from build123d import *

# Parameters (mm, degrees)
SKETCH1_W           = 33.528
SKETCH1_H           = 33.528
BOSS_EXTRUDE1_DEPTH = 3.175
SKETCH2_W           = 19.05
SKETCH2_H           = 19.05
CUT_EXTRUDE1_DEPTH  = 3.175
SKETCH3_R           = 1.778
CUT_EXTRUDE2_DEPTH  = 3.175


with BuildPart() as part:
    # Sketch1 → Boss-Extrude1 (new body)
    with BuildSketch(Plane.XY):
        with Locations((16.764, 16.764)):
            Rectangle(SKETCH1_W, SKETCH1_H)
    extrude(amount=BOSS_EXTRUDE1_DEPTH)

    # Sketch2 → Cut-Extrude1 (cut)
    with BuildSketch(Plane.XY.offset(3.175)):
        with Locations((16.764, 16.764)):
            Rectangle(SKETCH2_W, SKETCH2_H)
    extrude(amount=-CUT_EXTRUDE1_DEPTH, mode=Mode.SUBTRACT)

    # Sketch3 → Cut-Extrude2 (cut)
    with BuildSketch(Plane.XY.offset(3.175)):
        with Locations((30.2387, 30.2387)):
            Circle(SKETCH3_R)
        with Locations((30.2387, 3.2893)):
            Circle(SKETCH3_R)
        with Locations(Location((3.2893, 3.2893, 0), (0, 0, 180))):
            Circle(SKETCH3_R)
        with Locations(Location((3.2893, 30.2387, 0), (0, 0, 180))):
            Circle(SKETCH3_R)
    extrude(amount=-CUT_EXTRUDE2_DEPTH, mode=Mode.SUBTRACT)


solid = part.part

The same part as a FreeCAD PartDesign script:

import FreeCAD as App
import Part
import Sketcher

V = App.Vector
Q = App.Units.Quantity

doc = App.newDocument("Part")
params = doc.addObject("Spreadsheet::Sheet", "Params")
for row, (alias, value) in enumerate([
    ("sketch1_width", "1.32 in"),
    ("pad1_length", "0.125 in"),
    ("sketch2_width", "0.75 in"),
    ("pocket1_length", "0.125 in"),
    ("sketch3_diameter", "0.14 in"),
    ("pocket2_length", "0.125 in"),
], start=1):
    params.set(f"A{row}", alias)
    params.set(f"B{row}", "=" + value)
    params.setAlias(f"B{row}", alias)

body = doc.addObject("PartDesign::Body", "Body")

sketch1 = doc.addObject("Sketcher::SketchObject", "Sketch")
body.addObject(sketch1)
sketch1.AttachmentSupport = (doc.XY_Plane, [""])
sketch1.MapMode = "FlatFace"
sketch1.addGeometry(Part.LineSegment(V(0, 33.528, 0), V(0, 0, 0)), False)
sketch1.addGeometry(Part.LineSegment(V(0, 0, 0), V(33.528, 0, 0)), False)
sketch1.addGeometry(Part.LineSegment(V(33.528, 0, 0), V(33.528, 33.528, 0)), False)
sketch1.addGeometry(Part.LineSegment(V(33.528, 33.528, 0), V(0, 33.528, 0)), False)
sketch1.addConstraint(Sketcher.Constraint("Coincident", 0, 2, 1, 1))
sketch1.addConstraint(Sketcher.Constraint("Coincident", 1, 2, 2, 1))
sketch1.addConstraint(Sketcher.Constraint("Coincident", 2, 2, 3, 1))
sketch1.addConstraint(Sketcher.Constraint("Coincident", 3, 2, 0, 1))
sketch1.addConstraint(Sketcher.Constraint("Vertical", 0))
sketch1.addConstraint(Sketcher.Constraint("Horizontal", 1))
sketch1.addConstraint(Sketcher.Constraint("Vertical", 2))
sketch1.addConstraint(Sketcher.Constraint("Horizontal", 3))
sketch1.addConstraint(Sketcher.Constraint("Coincident", 0, 2, -1, 1))
sketch1.addConstraint(Sketcher.Constraint("Equal", 3, 0))
sketch1.addConstraint(Sketcher.Constraint("DistanceX", 1, 1, 1, 2, Q("1.32 in")))
sketch1.setExpression("Constraints[10]", "Params.sketch1_width")
pad1 = doc.addObject("PartDesign::Pad", "Pad")
body.addObject(pad1)
pad1.Profile = sketch1
pad1.setExpression("Length", "Params.pad1_length")

sketch2 = doc.addObject("Sketcher::SketchObject", "Sketch001")
body.addObject(sketch2)
sketch2.AttachmentSupport = (doc.XY_Plane, [""])
sketch2.MapMode = "FlatFace"
sketch2.AttachmentOffset = App.Placement(V(0, 0, 0.125 * 25.4), App.Rotation())
sketch2.addGeometry(Part.LineSegment(V(7.239, 26.289, 0), V(7.239, 7.239, 0)), False)
sketch2.addGeometry(Part.LineSegment(V(7.239, 7.239, 0), V(26.289, 7.239, 0)), False)
sketch2.addGeometry(Part.LineSegment(V(26.289, 7.239, 0), V(26.289, 26.289, 0)), False)
sketch2.addGeometry(Part.LineSegment(V(26.289, 26.289, 0), V(7.239, 26.289, 0)), False)
sketch2.addConstraint(Sketcher.Constraint("Coincident", 0, 2, 1, 1))
sketch2.addConstraint(Sketcher.Constraint("Coincident", 1, 2, 2, 1))
sketch2.addConstraint(Sketcher.Constraint("Coincident", 2, 2, 3, 1))
sketch2.addConstraint(Sketcher.Constraint("Coincident", 3, 2, 0, 1))
sketch2.addConstraint(Sketcher.Constraint("Vertical", 0))
sketch2.addConstraint(Sketcher.Constraint("Horizontal", 1))
sketch2.addConstraint(Sketcher.Constraint("Vertical", 2))
sketch2.addConstraint(Sketcher.Constraint("Horizontal", 3))
sketch2.addConstraint(Sketcher.Constraint("Equal", 3, 0))
sketch2.addConstraint(Sketcher.Constraint("DistanceX", 1, 1, 1, 2, Q("0.75 in")))
sketch2.addConstraint(Sketcher.Constraint("DistanceX", -1, 1, 0, 2, Q("0.285 in")))
sketch2.addConstraint(Sketcher.Constraint("DistanceY", -1, 1, 0, 2, Q("0.285 in")))
sketch2.setExpression("Constraints[9]", "Params.sketch2_width")
pocket1 = doc.addObject("PartDesign::Pocket", "Pocket")
body.addObject(pocket1)
pocket1.Profile = sketch2
pocket1.setExpression("Length", "Params.pocket1_length")

sketch3 = doc.addObject("Sketcher::SketchObject", "Sketch002")
body.addObject(sketch3)
sketch3.AttachmentSupport = (doc.XY_Plane, [""])
sketch3.MapMode = "FlatFace"
sketch3.AttachmentOffset = App.Placement(V(0, 0, 0.125 * 25.4), App.Rotation())
sketch3.addGeometry(Part.Circle(V(30.2387, 30.2387, 0), V(0, 0, 1), 1.778), False)
sketch3.addGeometry(Part.Circle(V(30.2387, 3.2893, 0), V(0, 0, 1), 1.778), False)
sketch3.addGeometry(Part.Circle(V(3.2893, 3.2893, 0), V(0, 0, 1), 1.778), False)
sketch3.addGeometry(Part.Circle(V(3.2893, 30.2387, 0), V(0, 0, 1), 1.778), False)
sketch3.addConstraint(Sketcher.Constraint("Equal", 0, 1))
sketch3.addConstraint(Sketcher.Constraint("Equal", 1, 2))
sketch3.addConstraint(Sketcher.Constraint("Equal", 2, 3))
sketch3.addConstraint(Sketcher.Constraint("Horizontal", 1, 3, 2, 3))
sketch3.addConstraint(Sketcher.Constraint("Horizontal", 0, 3, 3, 3))
sketch3.addConstraint(Sketcher.Constraint("Vertical", 0, 3, 1, 3))
sketch3.addConstraint(Sketcher.Constraint("Vertical", 2, 3, 3, 3))
sketch3.addConstraint(Sketcher.Constraint("Diameter", 0, Q("0.14 in")))
sketch3.addConstraint(Sketcher.Constraint("DistanceY", 1, 3, 0, 3, Q("1.061 in")))
sketch3.addConstraint(Sketcher.Constraint("DistanceX", 2, 3, 1, 3, Q("1.061 in")))
sketch3.addConstraint(Sketcher.Constraint("DistanceX", -1, 1, 0, 3, Q("1.1905 in")))
sketch3.addConstraint(Sketcher.Constraint("DistanceY", -1, 1, 0, 3, Q("1.1905 in")))
sketch3.setExpression("Constraints[7]", "Params.sketch3_diameter")
pocket2 = doc.addObject("PartDesign::Pocket", "Pocket001")
body.addObject(pocket2)
pocket2.Profile = sketch3
pocket2.setExpression("Length", "Params.pocket2_length")

doc.recompute()
